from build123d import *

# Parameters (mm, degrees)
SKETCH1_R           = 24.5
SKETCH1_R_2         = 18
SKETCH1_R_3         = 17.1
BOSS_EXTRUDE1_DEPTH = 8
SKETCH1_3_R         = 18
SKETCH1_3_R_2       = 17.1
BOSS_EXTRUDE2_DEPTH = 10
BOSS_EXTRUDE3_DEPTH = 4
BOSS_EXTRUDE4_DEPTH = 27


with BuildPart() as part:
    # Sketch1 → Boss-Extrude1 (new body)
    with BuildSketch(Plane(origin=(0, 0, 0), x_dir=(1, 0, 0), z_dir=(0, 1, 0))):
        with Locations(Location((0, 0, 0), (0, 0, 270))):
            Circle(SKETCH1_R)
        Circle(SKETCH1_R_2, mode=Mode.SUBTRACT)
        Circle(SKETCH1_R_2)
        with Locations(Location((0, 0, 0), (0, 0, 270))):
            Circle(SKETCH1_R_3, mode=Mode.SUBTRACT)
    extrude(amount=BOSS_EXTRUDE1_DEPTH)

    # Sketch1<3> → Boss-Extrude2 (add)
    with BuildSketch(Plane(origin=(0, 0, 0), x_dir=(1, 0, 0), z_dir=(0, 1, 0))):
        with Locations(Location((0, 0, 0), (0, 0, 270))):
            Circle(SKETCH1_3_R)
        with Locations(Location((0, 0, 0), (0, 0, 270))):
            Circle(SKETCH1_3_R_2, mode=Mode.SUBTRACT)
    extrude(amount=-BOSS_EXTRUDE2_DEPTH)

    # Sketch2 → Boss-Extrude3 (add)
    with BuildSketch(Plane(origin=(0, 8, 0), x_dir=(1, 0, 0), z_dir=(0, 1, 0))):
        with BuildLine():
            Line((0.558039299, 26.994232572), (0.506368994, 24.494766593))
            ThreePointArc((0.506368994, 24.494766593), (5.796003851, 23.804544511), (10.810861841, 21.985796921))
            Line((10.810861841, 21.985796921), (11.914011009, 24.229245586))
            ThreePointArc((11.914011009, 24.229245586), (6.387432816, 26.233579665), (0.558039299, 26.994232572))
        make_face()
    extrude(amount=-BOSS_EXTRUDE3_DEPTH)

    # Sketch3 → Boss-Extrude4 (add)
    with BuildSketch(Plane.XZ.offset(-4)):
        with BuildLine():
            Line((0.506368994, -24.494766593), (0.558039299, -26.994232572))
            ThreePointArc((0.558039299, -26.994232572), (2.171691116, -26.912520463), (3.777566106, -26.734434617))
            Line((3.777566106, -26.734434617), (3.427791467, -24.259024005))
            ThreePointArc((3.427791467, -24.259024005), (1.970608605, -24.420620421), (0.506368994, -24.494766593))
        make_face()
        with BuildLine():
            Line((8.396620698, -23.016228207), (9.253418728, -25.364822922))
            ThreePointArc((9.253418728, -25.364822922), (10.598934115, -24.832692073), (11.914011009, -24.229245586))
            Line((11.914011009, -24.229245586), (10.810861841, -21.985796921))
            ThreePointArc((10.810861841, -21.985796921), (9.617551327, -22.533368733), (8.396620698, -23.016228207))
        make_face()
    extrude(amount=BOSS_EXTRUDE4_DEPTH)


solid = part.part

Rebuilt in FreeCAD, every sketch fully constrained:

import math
import FreeCAD as App
import Part
import Sketcher
from FreeCAD import Vector
Q = App.Units.Quantity

doc = App.newDocument("Part")
body = doc.addObject("PartDesign::Body", "Body")

# Sketch on XZ plane
sketch1 = body.newObject("Sketcher::SketchObject", "Sketch")
sketch1.AttachmentSupport = (doc.getObject("XZ_Plane"), [""])
sketch1.MapMode = "FlatFace"
sketch1.addGeometry([
    Part.Circle(Vector(0, 0, 0), Vector(0, 0, 1), 24),
    Part.Circle(Vector(0, 0, 0), Vector(0, 0, 1), 17),
], False)
sketch1.addConstraint([
    Sketcher.Constraint("Coincident", 0, 3, -1, 1),
    Sketcher.Constraint("Coincident", 1, 3, -1, 1),
    Sketcher.Constraint("Diameter", 0, Q("49 mm")),
    Sketcher.Constraint("Diameter", 1, Q("34.2 mm")),
])
pad1 = body.newObject("PartDesign::Pad", "Pad")
pad1.Profile = sketch1
pad1.Length = 8
pad1.Reversed = True

# Sketch on XZ plane
sketch2 = body.newObject("Sketcher::SketchObject", "Sketch001")
sketch2.AttachmentSupport = (doc.getObject("XZ_Plane"), [""])
sketch2.MapMode = "FlatFace"
sketch2.addGeometry([
    Part.Circle(Vector(0, 0, 0), Vector(0, 0, 1), 18),
    Part.Circle(Vector(0, 0, 0), Vector(0, 0, 1), 17),
], False)
sketch2.addConstraint([
    Sketcher.Constraint("Coincident", 0, 3, -1, 1),
    Sketcher.Constraint("Coincident", 1, 3, -1, 1),
    Sketcher.Constraint("Diameter", 0, Q("36 mm")),
    Sketcher.Constraint("Diameter", 1, Q("34.2 mm")),
])
pad2 = body.newObject("PartDesign::Pad", "Pad001")
pad2.Profile = sketch2
pad2.Length = 10

# Sketch on XZ plane
sketch3 = body.newObject("Sketcher::SketchObject", "Sketch002")
sketch3.AttachmentSupport = (doc.getObject("XZ_Plane"), [""])
sketch3.MapMode = "FlatFace"
sketch3.AttachmentOffset = App.Placement(Vector(0, 0, -8), App.Rotation())
sketch3.addGeometry([
    Part.LineSegment(Vector(0.6, -27, 0), Vector(0.5, -24.5, 0)),
    Part.ArcOfCircle(Part.Circle(Vector(0, 0, 0), Vector(0, 0, 1), 24.5), math.radians(-89), math.radians(-64)),
    Part.LineSegment(Vector(10.8, -22, 0), Vector(11.9, -24.2, 0)),
    Part.ArcOfCircle(Part.Circle(Vector(0, 0, 0), Vector(0, 0, 1), 27), math.radians(-89), math.radians(-64)),
], False)
sketch3.addConstraint([
    Sketcher.Constraint("Coincident", 0, 2, 1, 1),
    Sketcher.Constraint("Coincident", 1, 2, 2, 1),
    Sketcher.Constraint("Coincident", 2, 2, 3, 2),
    Sketcher.Constraint("Coincident", 3, 1, 0, 1),
    Sketcher.Constraint("Coincident", 1, 3, -1, 1),
    Sketcher.Constraint("Coincident", 3, 3, -1, 1),
    Sketcher.Constraint("Radius", 3, Q("27 mm")),
    Sketcher.Constraint("Radius", 1, Q("24.5 mm")),
    Sketcher.Constraint("DistanceX", -1, 1, 0, 2, Q("0.506369 mm")),
    Sketcher.Constraint("DistanceX", -1, 1, 1, 2, Q("10.810862 mm")),
    Sketcher.Constraint("DistanceX", -1, 1, 2, 2, Q("11.914011 mm")),
    Sketcher.Constraint("DistanceX", -1, 1, 3, 1, Q("0.558039 mm")),
])
pad3 = body.newObject("PartDesign::Pad", "Pad002")
pad3.Profile = sketch3
pad3.Length = 4

# Sketch on XZ plane
sketch4 = body.newObject("Sketcher::SketchObject", "Sketch003")
sketch4.AttachmentSupport = (doc.getObject("XZ_Plane"), [""])
sketch4.MapMode = "FlatFace"
sketch4.AttachmentOffset = App.Placement(Vector(0, 0, -4), App.Rotation())
sketch4.addGeometry([
    Part.LineSegment(Vector(0.5, -24.5, 0), Vector(0.6, -27, 0)),  # 0
    Part.ArcOfCircle(Part.Circle(Vector(0, 0, 0), Vector(0, 0, 1), 27), math.radians(-88.82), math.radians(-81.96)),  # 1
    Part.LineSegment(Vector(3.8, -26.7, 0), Vector(3.4, -24.3, 0)),  # 2
    Part.ArcOfCircle(Part.Circle(Vector(0, 0, 0), Vector(0, 0, 1), 24.5), math.radians(-88.82), math.radians(-81.96)),  # 3
    Part.LineSegment(Vector(8.4, -23, 0), Vector(9.3, -25.4, 0)),  # 4
    Part.ArcOfCircle(Part.Circle(Vector(0, 0, 0), Vector(0, 0, 1), 27), math.radians(-69.96), math.radians(-63.82)),  # 5
    Part.LineSegment(Vector(11.9, -24.2, 0), Vector(10.8, -22, 0)),  # 6
    Part.ArcOfCircle(Part.Circle(Vector(0, 0, 0), Vector(0, 0, 1), 24.5), math.radians(-69.96), math.radians(-63.82)),  # 7
], False)
sketch4.addConstraint([
    Sketcher.Constraint("Coincident", 0, 2, 1, 1),
    Sketcher.Constraint("Coincident", 1, 2, 2, 1),
    Sketcher.Constraint("Coincident", 2, 2, 3, 2),
    Sketcher.Constraint("Coincident", 3, 1, 0, 1),
    Sketcher.Constraint("Coincident", 4, 2, 5, 1),
    Sketcher.Constraint("Coincident", 5, 2, 6, 1),
    Sketcher.Constraint("Coincident", 6, 2, 7, 2),
    Sketcher.Constraint("Coincident", 7, 1, 4, 1),
    Sketcher.Constraint("Coincident", 1, 3, -1, 1),
    Sketcher.Constraint("Coincident", 3, 3, -1, 1),
    Sketcher.Constraint("Coincident", 5, 3, -1, 1),
    Sketcher.Constraint("Coincident", 7, 3, -1, 1),
    Sketcher.Constraint("Equal", 1, 5),
    Sketcher.Constraint("Equal", 3, 7),
    Sketcher.Constraint("Radius", 1, Q("27 mm")),
    Sketcher.Constraint("Radius", 3, Q("24.5 mm")),
    Sketcher.Constraint("DistanceY", 4, 2, 2, 2, Q("1.105799 mm")),
    Sketcher.Constraint("DistanceX", 7, 1, 4, 2, Q("0.856798 mm")),
    Sketcher.Constraint("DistanceX", -1, 1, 0, 2, Q("0.558039 mm")),
    Sketcher.Constraint("DistanceX", -1, 1, 2, 2, Q("3.427791 mm")),
    Sketcher.Constraint("DistanceX", -1, 1, 3, 1, Q("0.506369 mm")),
    Sketcher.Constraint("DistanceX", -1, 1, 5, 2, Q("11.914011 mm")),
    Sketcher.Constraint("DistanceX", -1, 1, 6, 2, Q("10.810862 mm")),
    Sketcher.Constraint("DistanceY", 1, 2, 2, 2, Q("2.475411 mm")),
])
pad4 = body.newObject("PartDesign::Pad", "Pad003")
pad4.Profile = sketch4
pad4.Length = 27

doc.recompute()
